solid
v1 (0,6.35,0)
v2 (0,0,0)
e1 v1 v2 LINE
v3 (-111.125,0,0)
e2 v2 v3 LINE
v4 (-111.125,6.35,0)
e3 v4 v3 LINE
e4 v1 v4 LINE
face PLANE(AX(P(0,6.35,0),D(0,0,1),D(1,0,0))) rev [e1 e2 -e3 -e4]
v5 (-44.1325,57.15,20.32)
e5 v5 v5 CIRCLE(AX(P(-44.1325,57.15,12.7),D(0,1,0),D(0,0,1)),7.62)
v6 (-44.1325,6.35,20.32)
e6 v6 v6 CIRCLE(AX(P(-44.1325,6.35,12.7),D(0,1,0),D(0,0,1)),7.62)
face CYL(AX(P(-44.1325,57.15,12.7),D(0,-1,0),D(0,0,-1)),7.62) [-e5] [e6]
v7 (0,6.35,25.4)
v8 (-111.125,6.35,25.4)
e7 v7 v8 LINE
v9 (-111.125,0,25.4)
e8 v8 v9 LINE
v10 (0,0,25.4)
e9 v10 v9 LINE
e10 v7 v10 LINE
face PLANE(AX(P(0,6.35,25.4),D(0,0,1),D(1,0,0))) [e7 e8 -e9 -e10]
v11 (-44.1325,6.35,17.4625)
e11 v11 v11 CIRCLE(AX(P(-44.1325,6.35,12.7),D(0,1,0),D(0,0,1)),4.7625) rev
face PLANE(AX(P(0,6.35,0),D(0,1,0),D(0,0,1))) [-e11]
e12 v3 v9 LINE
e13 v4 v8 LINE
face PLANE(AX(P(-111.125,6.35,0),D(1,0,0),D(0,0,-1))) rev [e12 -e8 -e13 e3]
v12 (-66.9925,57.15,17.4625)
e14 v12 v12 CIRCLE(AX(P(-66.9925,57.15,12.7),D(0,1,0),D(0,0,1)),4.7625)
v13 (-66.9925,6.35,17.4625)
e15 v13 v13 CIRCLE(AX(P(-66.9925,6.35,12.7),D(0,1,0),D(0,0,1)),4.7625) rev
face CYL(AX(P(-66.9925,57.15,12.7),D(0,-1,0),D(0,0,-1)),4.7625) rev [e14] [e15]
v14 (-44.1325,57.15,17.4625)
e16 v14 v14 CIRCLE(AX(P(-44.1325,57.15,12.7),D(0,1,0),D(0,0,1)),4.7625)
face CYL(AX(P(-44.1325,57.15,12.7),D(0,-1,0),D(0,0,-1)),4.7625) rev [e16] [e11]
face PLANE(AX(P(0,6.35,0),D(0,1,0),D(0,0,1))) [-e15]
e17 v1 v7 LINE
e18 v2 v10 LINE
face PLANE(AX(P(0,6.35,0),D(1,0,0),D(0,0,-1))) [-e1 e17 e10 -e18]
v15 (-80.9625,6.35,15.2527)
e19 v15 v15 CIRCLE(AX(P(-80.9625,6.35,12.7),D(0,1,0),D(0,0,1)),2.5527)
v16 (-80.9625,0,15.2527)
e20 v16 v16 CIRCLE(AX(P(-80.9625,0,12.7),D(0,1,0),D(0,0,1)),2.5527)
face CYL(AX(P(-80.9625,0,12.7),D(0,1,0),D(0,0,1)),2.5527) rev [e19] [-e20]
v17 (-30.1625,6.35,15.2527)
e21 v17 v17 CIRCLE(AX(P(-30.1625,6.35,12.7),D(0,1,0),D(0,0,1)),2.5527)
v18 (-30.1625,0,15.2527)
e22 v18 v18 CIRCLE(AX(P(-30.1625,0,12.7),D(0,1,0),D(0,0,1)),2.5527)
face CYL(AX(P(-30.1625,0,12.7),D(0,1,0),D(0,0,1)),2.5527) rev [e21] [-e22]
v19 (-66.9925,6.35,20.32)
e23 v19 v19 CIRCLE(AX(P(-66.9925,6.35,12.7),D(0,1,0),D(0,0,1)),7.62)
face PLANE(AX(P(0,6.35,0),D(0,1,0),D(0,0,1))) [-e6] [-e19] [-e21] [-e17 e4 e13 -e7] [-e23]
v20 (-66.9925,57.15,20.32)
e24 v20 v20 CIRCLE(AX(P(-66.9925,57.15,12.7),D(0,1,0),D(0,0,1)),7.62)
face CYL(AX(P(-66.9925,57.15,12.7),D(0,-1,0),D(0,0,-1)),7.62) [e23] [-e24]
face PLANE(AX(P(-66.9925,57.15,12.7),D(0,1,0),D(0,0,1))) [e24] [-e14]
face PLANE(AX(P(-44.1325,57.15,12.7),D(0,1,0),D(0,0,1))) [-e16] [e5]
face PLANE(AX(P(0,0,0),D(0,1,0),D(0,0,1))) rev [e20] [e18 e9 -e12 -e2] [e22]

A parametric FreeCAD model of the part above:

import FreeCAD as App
import Part
import Sketcher

V = App.Vector
Q = App.Units.Quantity

doc = App.newDocument("Part")
params = doc.addObject("Spreadsheet::Sheet", "Params")
for row, (alias, value) in enumerate([
    ("sketch1_height", "1 in"),
    ("sketch1_width", "4.375 in"),
    ("pad1_length", "0.25 in"),
    ("sketch2_diameter", "0.6 in"),
    ("sketch2_diameter2", "0.375 in"),
    ("pad2_length", "2 in"),
    ("sketch3_diameter", "0.201 in"),
], start=1):
    params.set(f"A{row}", alias)
    params.set(f"B{row}", "=" + value)
    params.setAlias(f"B{row}", alias)

body = doc.addObject("PartDesign::Body", "Body")

# Sketch on XZ plane
sketch1 = body.newObject("Sketcher::SketchObject", "Sketch")
sketch1.AttachmentSupport = (doc.getObject("XZ_Plane"), [""])
sketch1.MapMode = "FlatFace"
sketch1.addGeometry(Part.LineSegment(V(-111.125, 0, 0), V(-111.125, 25.4, 0)), False)
sketch1.addGeometry(Part.LineSegment(V(-111.125, 25.4, 0), V(0, 25.4, 0)), False)
sketch1.addGeometry(Part.LineSegment(V(0, 25.4, 0), V(0, 0, 0)), False)
sketch1.addGeometry(Part.LineSegment(V(0, 0, 0), V(-111.125, 0, 0)), False)
sketch1.addConstraint(Sketcher.Constraint("Coincident", 0, 2, 1, 1))
sketch1.addConstraint(Sketcher.Constraint("Coincident", 1, 2, 2, 1))
sketch1.addConstraint(Sketcher.Constraint("Coincident", 2, 2, 3, 1))
sketch1.addConstraint(Sketcher.Constraint("Coincident", 3, 2, 0, 1))
sketch1.addConstraint(Sketcher.Constraint("Vertical", 0))
sketch1.addConstraint(Sketcher.Constraint("Horizontal", 1))
sketch1.addConstraint(Sketcher.Constraint("Vertical", 2))
sketch1.addConstraint(Sketcher.Constraint("Horizontal", 3))
sketch1.addConstraint(Sketcher.Constraint("Coincident", 2, 2, -1, 1))
sketch1.addConstraint(Sketcher.Constraint("DistanceY", 0, 1, 0, 2, Q("1 in")))
sketch1.addConstraint(Sketcher.Constraint("DistanceX", 1, 1, 1, 2, Q("4.375 in")))
sketch1.setExpression("Constraints[9]", "Params.sketch1_height")
sketch1.setExpression("Constraints[10]", "Params.sketch1_width")
pad1 = body.newObject("PartDesign::Pad", "Pad")
pad1.Profile = sketch1
pad1.setExpression("Length", "Params.pad1_length")
pad1.Reversed = True

# Sketch on XZ plane
sketch2 = body.newObject("Sketcher::SketchObject", "Sketch001")
sketch2.AttachmentSupport = (doc.getObject("XZ_Plane"), [""])
sketch2.MapMode = "FlatFace"
sketch2.AttachmentOffset = App.Placement(V(0, 0, -0.25 * 25.4), App.Rotation())
sketch2.addGeometry(Part.Circle(V(-44.1325, 12.7, 0), V(0, 0, 1), 7.62), False)
sketch2.addGeometry(Part.Circle(V(-44.1325, 12.7, 0), V(0, 0, 1), 4.7625), False)
sketch2.addGeometry(Part.Circle(V(-66.9925, 12.7, 0), V(0, 0, 1), 7.62), False)
sketch2.addGeometry(Part.Circle(V(-66.9925, 12.7, 0), V(0, 0, 1), 4.7625), False)
sketch2.addConstraint(Sketcher.Constraint("Coincident", 1, 3, 0, 3))
sketch2.addConstraint(Sketcher.Constraint("Coincident", 3, 3, 2, 3))
sketch2.addConstraint(Sketcher.Constraint("Equal", 0, 2))
sketch2.addConstraint(Sketcher.Constraint("Equal", 1, 3))
sketch2.addConstraint(Sketcher.Constraint("Horizontal", 1, 3, 2, 3))
sketch2.addConstraint(Sketcher.Constraint("Diameter", 0, Q("0.6 in")))
sketch2.addConstraint(Sketcher.Constraint("Diameter", 1, Q("0.375 in")))
sketch2.addConstraint(Sketcher.Constraint("DistanceY", -1, 1, 0, 3, Q("0.5 in")))
sketch2.addConstraint(Sketcher.Constraint("DistanceX", 2, 3, 0, 3, Q("0.9 in")))
sketch2.addConstraint(Sketcher.Constraint("DistanceX", 0, 3, -1, 1, Q("1.7375 in")))
sketch2.setExpression("Constraints[5]", "Params.sketch2_diameter")
sketch2.setExpression("Constraints[6]", "Params.sketch2_diameter2")
pad2 = body.newObject("PartDesign::Pad", "Pad001")
pad2.Profile = sketch2
pad2.setExpression("Length", "Params.pad2_length")
pad2.Reversed = True

# Sketch on XZ plane
sketch3 = body.newObject("Sketcher::SketchObject", "Sketch002")
sketch3.AttachmentSupport = (doc.getObject("XZ_Plane"), [""])
sketch3.MapMode = "FlatFace"
sketch3.AttachmentOffset = App.Placement(V(0, 0, -0.25 * 25.4), App.Rotation())
sketch3.addGeometry(Part.Circle(V(-30.1625, 12.7, 0), V(0, 0, 1), 2.5527), False)
sketch3.addGeometry(Part.Circle(V(-80.9625, 12.7, 0), V(0, 0, 1), 2.5527), False)
sketch3.addConstraint(Sketcher.Constraint("Equal", 0, 1))
sketch3.addConstraint(Sketcher.Constraint("Horizontal", 0, 3, 1, 3))
sketch3.addConstraint(Sketcher.Constraint("Diameter", 0, Q("0.201 in")))
sketch3.addConstraint(Sketcher.Constraint("DistanceX", 1, 3, 0, 3, Q("2 in")))
sketch3.addConstraint(Sketcher.Constraint("DistanceY", -1, 1, 0, 3, Q("0.5 in")))
sketch3.addConstraint(Sketcher.Constraint("DistanceX", 0, 3, -1, 1, Q("1.1875 in")))
sketch3.setExpression("Constraints[2]", "Params.sketch3_diameter")
pocket1 = body.newObject("PartDesign::Pocket", "Pocket")
pocket1.Profile = sketch3
pocket1.Type = "ThroughAll"
pocket1.Reversed = True

doc.recompute()
